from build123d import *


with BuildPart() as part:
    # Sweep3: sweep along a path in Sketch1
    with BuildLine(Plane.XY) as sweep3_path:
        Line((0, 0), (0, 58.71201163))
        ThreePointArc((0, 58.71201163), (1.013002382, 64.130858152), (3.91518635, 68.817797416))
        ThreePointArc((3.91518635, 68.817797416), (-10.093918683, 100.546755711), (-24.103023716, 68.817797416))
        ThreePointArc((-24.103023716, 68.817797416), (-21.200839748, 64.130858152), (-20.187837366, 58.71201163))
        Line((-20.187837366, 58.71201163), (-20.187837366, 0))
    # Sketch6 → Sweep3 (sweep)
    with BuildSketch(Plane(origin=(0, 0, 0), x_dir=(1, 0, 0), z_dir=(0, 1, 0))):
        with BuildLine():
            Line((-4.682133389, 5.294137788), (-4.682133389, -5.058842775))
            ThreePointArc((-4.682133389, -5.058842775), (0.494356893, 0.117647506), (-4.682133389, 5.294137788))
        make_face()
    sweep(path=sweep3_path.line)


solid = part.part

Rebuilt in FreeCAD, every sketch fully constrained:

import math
import FreeCAD as App
import Part
import Sketcher
from FreeCAD import Vector

doc = App.newDocument("Part")
body = doc.addObject("PartDesign::Body", "Body")

sketch1 = body.newObject("Sketcher::SketchObject", "Sketch")
sketch1.AttachmentSupport = (doc.getObject("XZ_Plane"), [""])
sketch1.MapMode = "FlatFace"
sketch1.addGeometry([
    Part.LineSegment(Vector(-5, -5, 0), Vector(-5, 5, 0)),
    Part.ArcOfCircle(Part.Circle(Vector(-5, 0, 0), Vector(0, 0, 1), 5), math.radians(-90), math.radians(90)),
], False)
sketch1.addConstraint([
    Sketcher.Constraint("Coincident", 0, 1, 1, 1),
    Sketcher.Constraint("Coincident", 1, 2, 0, 2),
    Sketcher.Constraint("Vertical", 0),
    Sketcher.Constraint("Vertical", 1, 3, 0, 1),
    Sketcher.Constraint("Radius", 1, 5.17649),
    Sketcher.Constraint("DistanceX", 1, 3, -1, 1, 4.682133),
    Sketcher.Constraint("DistanceY", 1, 3, -1, 1, 0.117648),
])

sketch2 = body.newObject("Sketcher::SketchObject", "Sketch001")
sketch2.AttachmentSupport = (doc.getObject("XY_Plane"), [""])
sketch2.MapMode = "FlatFace"
sketch2.addGeometry([
    Part.LineSegment(Vector(0, 0, 0), Vector(0, 59, 0)),
    Part.ArcOfCircle(Part.Circle(Vector(15, 59, 0), Vector(0, 0, 1), 15), math.radians(138), math.radians(180)),
    Part.ArcOfCircle(Part.Circle(Vector(-10, 82, 0), Vector(0, 0, 1), 19), math.radians(-42), math.radians(222)),
    Part.ArcOfCircle(Part.Circle(Vector(-35, 59, 0), Vector(0, 0, 1), 15), math.radians(0), math.radians(42)),
    Part.LineSegment(Vector(-20, 59, 0), Vector(-20, 0, 0)),
], False)
sketch2.addConstraint([
    Sketcher.Constraint("Tangent", 0, 2, 1, 2),
    Sketcher.Constraint("Tangent", 1, 1, 2, 1),
    Sketcher.Constraint("Tangent", 2, 2, 3, 2),
    Sketcher.Constraint("Tangent", 3, 1, 4, 1),
    Sketcher.Constraint("Vertical", 0),
    Sketcher.Constraint("Vertical", 4),
    Sketcher.Constraint("Coincident", 0, 1, -1, 1),
    Sketcher.Constraint("Equal", 1, 3),
    Sketcher.Constraint("PointOnObject", 4, 2, -1),
    Sketcher.Constraint("Horizontal", 1, 3, 3, 3),
    Sketcher.Constraint("Radius", 1, 15.0),
    Sketcher.Constraint("Radius", 2, 18.957159),
    Sketcher.Constraint("DistanceY", 0, 1, 0, 2, 58.712012),
    Sketcher.Constraint("DistanceY", 1, 1, 2, 3, 12.771799),
])
doc.recompute()

additivepipe = body.newObject("PartDesign::AdditivePipe", "AdditivePipe")
additivepipe.Profile = sketch1
additivepipe.Spine = (sketch2, ["Edge1", "Edge2", "Edge3", "Edge4", "Edge5"])

doc.recompute()
